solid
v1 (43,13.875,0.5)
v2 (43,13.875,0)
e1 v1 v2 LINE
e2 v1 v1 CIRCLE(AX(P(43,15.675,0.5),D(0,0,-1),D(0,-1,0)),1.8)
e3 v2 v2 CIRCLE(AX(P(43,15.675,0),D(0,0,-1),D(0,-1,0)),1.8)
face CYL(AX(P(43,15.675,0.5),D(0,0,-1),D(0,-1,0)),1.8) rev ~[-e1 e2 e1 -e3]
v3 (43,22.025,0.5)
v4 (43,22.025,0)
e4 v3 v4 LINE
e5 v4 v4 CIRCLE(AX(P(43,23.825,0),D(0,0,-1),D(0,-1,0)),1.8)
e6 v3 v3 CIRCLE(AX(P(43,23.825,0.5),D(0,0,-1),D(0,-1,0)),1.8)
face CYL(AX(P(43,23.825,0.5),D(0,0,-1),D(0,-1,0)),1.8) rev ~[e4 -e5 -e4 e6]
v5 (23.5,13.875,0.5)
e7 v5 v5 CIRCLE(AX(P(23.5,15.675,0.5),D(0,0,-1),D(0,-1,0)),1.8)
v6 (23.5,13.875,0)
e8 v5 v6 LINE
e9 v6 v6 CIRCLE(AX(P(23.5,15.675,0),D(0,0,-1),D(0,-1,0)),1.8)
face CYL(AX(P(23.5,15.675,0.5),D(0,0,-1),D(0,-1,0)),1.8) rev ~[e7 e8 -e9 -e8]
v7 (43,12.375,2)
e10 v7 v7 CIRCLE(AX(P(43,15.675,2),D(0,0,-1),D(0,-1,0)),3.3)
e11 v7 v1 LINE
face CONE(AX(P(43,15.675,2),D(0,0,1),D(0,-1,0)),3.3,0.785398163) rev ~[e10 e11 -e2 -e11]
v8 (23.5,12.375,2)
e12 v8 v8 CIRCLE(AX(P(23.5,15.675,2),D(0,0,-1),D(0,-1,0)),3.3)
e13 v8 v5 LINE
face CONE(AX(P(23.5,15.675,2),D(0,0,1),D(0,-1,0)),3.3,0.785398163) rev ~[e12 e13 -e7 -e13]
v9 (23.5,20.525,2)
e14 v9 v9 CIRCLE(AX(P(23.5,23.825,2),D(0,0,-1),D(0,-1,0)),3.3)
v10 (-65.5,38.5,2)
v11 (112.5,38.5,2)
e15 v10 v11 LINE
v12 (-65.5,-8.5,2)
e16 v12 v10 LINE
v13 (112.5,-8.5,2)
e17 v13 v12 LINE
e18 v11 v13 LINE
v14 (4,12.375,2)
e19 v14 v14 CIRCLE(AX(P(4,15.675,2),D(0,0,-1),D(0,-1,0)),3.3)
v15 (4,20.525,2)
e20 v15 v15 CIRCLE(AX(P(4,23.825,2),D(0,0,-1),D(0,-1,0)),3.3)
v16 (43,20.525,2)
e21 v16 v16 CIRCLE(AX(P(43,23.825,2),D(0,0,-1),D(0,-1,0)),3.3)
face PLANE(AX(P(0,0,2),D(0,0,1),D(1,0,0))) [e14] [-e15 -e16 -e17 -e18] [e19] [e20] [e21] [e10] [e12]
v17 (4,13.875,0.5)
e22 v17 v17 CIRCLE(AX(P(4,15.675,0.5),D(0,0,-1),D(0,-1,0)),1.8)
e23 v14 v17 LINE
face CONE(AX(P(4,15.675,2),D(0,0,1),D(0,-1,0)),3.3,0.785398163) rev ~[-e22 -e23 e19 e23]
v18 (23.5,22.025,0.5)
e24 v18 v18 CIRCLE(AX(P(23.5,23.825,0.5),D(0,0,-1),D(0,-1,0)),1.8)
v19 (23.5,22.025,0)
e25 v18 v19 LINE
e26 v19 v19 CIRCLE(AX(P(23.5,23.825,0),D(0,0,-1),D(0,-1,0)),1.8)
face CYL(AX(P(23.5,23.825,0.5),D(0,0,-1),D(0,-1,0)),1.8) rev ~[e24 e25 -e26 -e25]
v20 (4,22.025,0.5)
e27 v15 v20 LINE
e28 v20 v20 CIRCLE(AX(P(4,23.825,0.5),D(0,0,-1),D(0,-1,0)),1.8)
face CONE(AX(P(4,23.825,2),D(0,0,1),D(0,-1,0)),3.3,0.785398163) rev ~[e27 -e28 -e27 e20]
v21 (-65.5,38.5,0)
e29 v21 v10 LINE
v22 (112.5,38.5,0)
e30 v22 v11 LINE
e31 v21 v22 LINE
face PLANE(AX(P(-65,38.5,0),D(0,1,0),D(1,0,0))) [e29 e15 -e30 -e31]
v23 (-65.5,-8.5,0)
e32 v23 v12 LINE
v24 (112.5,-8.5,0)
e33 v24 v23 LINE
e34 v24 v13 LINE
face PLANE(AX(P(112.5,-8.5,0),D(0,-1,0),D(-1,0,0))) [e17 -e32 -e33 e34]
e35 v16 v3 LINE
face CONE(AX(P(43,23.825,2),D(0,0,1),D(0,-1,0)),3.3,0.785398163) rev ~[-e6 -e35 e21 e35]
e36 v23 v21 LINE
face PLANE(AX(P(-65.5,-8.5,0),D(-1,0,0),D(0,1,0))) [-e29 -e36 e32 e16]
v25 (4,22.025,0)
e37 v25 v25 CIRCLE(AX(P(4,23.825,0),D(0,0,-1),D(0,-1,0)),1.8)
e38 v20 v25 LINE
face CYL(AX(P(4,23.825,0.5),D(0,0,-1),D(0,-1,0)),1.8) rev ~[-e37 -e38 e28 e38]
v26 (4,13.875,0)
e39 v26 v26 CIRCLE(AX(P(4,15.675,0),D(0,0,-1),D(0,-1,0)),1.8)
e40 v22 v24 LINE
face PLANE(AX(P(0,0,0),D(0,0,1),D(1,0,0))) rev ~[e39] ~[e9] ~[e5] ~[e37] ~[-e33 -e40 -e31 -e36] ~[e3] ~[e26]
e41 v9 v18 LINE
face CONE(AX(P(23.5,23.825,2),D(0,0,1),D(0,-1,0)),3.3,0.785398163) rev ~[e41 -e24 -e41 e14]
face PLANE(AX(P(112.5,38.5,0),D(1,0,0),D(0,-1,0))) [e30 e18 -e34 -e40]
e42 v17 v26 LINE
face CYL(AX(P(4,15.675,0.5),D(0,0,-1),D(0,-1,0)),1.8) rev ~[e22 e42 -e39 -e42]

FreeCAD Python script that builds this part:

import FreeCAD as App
import Part
import Sketcher
Q = App.Units.Quantity


def add_polygon(sketch, points):
    """Adds a closed chain of lines whose ends are joined by coincident constraints."""
    first, n = sketch.GeometryCount, len(points)
    for a, b in zip(points, points[1:] + points[:1]):
        sketch.addGeometry(Part.LineSegment(App.Vector(*a, 0), App.Vector(*b, 0)), False)
    for i in range(n):
        sketch.addConstraint(Sketcher.Constraint("Coincident", first + i, 2, first + (i + 1) % n, 1))

doc = App.newDocument("Part")
body = doc.addObject("PartDesign::Body", "Body")

# Sketch on XY plane
sketch1 = body.newObject("Sketcher::SketchObject", "Sketch")
sketch1.AttachmentSupport = (doc.getObject("XY_Plane"), [""])
sketch1.MapMode = "FlatFace"
add_polygon(sketch1, [(112, 38), (-66, 38), (-66, -8), (112, -8)])  # lines 0-3
sketch1.addConstraint([
    Sketcher.Constraint("Horizontal", 0),
    Sketcher.Constraint("Vertical", 1),
    Sketcher.Constraint("Horizontal", 2),
    Sketcher.Constraint("Vertical", 3),
    Sketcher.Constraint("DistanceX", 0, 2, 0, 1, Q("178 mm")),
    Sketcher.Constraint("DistanceY", 1, 2, 1, 1, Q("47 mm")),
    Sketcher.Constraint("DistanceX", 0, 2, -1, 1, Q("65.5 mm")),
    Sketcher.Constraint("DistanceY", -1, 1, 0, 2, Q("38.5 mm")),
])
pad1 = body.newObject("PartDesign::Pad", "Pad")
pad1.Profile = sketch1
pad1.Length = 2

# Sketch on XY plane
sketch2 = body.newObject("Sketcher::SketchObject", "Sketch001")
sketch2.AttachmentSupport = (doc.getObject("XY_Plane"), [""])
sketch2.MapMode = "FlatFace"
sketch2.AttachmentOffset = App.Placement(App.Vector(0, 0, 2), App.Rotation())
sketch2.addGeometry([
    Part.Circle(App.Vector(4, 23.8, 0), App.Vector(0, 0, 1), 1.8),  # 0
    Part.Circle(App.Vector(4, 15.7, 0), App.Vector(0, 0, 1), 1.8),  # 1
    Part.Circle(App.Vector(23.5, 15.7, 0), App.Vector(0, 0, 1), 1.8),  # 2
    Part.Circle(App.Vector(23.5, 23.8, 0), App.Vector(0, 0, 1), 1.8),  # 3
    Part.Circle(App.Vector(43, 23.8, 0), App.Vector(0, 0, 1), 1.8),  # 4
    Part.Circle(App.Vector(43, 15.7, 0), App.Vector(0, 0, 1), 1.8),  # 5
], False)
sketch2.addConstraint([
    Sketcher.Constraint("Equal", 0, 1),
    Sketcher.Constraint("Equal", 1, 2),
    Sketcher.Constraint("Equal", 2, 3),
    Sketcher.Constraint("Equal", 3, 4),
    Sketcher.Constraint("Equal", 4, 5),
    Sketcher.Constraint("Horizontal", 1, 3, 2, 3),
    Sketcher.Constraint("Horizontal", 0, 3, 3, 3),
    Sketcher.Constraint("Horizontal", 3, 3, 4, 3),
    Sketcher.Constraint("Horizontal", 2, 3, 5, 3),
    Sketcher.Constraint("Vertical", 0, 3, 1, 3),
    Sketcher.Constraint("Vertical", 2, 3, 3, 3),
    Sketcher.Constraint("Vertical", 4, 3, 5, 3),
    Sketcher.Constraint("Diameter", 0, Q("3.6 mm")),
    Sketcher.Constraint("DistanceX", -1, 1, 0, 3, Q("4 mm")),
    Sketcher.Constraint("DistanceX", -1, 1, 4, 3, Q("43 mm")),
    Sketcher.Constraint("DistanceX", -1, 1, 2, 3, Q("23.5 mm")),
    Sketcher.Constraint("DistanceY", 1, 3, 0, 3, Q("8.15 mm")),
    Sketcher.Constraint("DistanceY", -1, 1, 0, 3, Q("23.825 mm")),
])
doc.recompute()
hole = body.newObject("PartDesign::Hole", "Hole")
hole.Profile = sketch2
hole.ThreadType = "None"
hole.Diameter = 3.6
hole.DepthType = "ThroughAll"
hole.HoleCutType = "Countersink"
hole.HoleCutDiameter = 6.6
hole.HoleCutCountersinkAngle = 90

doc.recompute()
